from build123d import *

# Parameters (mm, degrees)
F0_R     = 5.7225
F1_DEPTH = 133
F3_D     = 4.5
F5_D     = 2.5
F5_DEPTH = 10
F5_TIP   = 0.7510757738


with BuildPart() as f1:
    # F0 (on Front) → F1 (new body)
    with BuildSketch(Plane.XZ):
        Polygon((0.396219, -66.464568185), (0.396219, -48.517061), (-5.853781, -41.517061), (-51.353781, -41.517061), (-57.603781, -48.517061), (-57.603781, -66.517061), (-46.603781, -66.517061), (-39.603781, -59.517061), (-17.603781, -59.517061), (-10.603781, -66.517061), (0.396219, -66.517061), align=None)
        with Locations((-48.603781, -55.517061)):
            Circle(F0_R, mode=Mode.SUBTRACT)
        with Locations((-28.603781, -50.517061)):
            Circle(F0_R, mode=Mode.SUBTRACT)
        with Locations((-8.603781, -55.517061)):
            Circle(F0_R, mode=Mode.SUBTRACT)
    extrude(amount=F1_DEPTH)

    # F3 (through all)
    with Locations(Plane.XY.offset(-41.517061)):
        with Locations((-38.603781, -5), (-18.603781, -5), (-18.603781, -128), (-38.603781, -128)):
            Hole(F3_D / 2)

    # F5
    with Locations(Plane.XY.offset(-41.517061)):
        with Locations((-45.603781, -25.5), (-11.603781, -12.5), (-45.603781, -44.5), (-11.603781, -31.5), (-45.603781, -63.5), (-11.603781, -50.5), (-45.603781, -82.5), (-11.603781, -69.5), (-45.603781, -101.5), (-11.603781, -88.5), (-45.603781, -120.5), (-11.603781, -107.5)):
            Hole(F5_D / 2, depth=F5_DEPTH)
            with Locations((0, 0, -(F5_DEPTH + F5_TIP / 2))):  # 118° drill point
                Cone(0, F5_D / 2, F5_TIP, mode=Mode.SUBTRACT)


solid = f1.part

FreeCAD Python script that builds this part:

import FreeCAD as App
import Part
import Sketcher
from FreeCAD import Vector
Q = App.Units.Quantity

doc = App.newDocument("Part")
params = doc.addObject("Spreadsheet::Sheet", "Params")
for row, (alias, value) in enumerate([
    ("sketch1_width", "11 mm"),
    ("sketch1_width2", "22 mm"),
    ("sketch1_height", "18 mm"),
    ("sketch1_width3", "45.5 mm"),
    ("pad1_length", "133 mm"),
    ("sketch2_diameter", "4.5 mm"),
    ("hole_diameter", "4.5 mm"),
    ("sketch3_diameter", "2.5 mm"),
    ("hole2_diameter", "2.5 mm"),
    ("hole2_depth", "10 mm"),
], start=1):
    params.set(f"A{row}", alias)
    params.set(f"B{row}", "=" + value)
    params.setAlias(f"B{row}", alias)

body = doc.addObject("PartDesign::Body", "Body")

# Sketch on XZ plane
sketch1 = body.newObject("Sketcher::SketchObject", "Sketch")
sketch1.AttachmentSupport = (doc.getObject("XZ_Plane"), [""])
sketch1.MapMode = "FlatFace"
sketch1.addGeometry([
    Part.LineSegment(Vector(0.396219, -48.517061, 0), Vector(-5.853781, -41.517061, 0)),  # 0
    Part.LineSegment(Vector(-5.853781, -41.517061, 0), Vector(-51.353781, -41.517061, 0)),  # 1
    Part.LineSegment(Vector(-51.353781, -41.517061, 0), Vector(-57.603781, -48.517061, 0)),  # 2
    Part.LineSegment(Vector(-57.603781, -48.517061, 0), Vector(-57.603781, -66.517061, 0)),  # 3
    Part.LineSegment(Vector(-57.603781, -66.517061, 0), Vector(-46.603781, -66.517061, 0)),  # 4
    Part.LineSegment(Vector(-46.603781, -66.517061, 0), Vector(-39.603781, -59.517061, 0)),  # 5
    Part.LineSegment(Vector(-39.603781, -59.517061, 0), Vector(-17.603781, -59.517061, 0)),  # 6
    Part.LineSegment(Vector(-17.603781, -59.517061, 0), Vector(-10.603781, -66.517061, 0)),  # 7
    Part.LineSegment(Vector(-10.603781, -66.517061, 0), Vector(0.396219, -66.517061, 0)),  # 8
    Part.LineSegment(Vector(0.396219, -66.517061, 0), Vector(0.396219, -48.517061, 0)),  # 9
    Part.Circle(Vector(-48.603781, -55.517061, 0), Vector(0, 0, 1), 5.7225),  # 10
    Part.Circle(Vector(-8.603781, -55.517061, 0), Vector(0, 0, 1), 5.7225),  # 11
    Part.Circle(Vector(-28.603781, -50.517061, 0), Vector(0, 0, 1), 5.7225),  # 12
], False)
sketch1.addConstraint([
    Sketcher.Constraint("Coincident", 0, 2, 1, 1),
    Sketcher.Constraint("Coincident", 1, 2, 2, 1),
    Sketcher.Constraint("Coincident", 2, 2, 3, 1),
    Sketcher.Constraint("Coincident", 3, 2, 4, 1),
    Sketcher.Constraint("Coincident", 4, 2, 5, 1),
    Sketcher.Constraint("Coincident", 5, 2, 6, 1),
    Sketcher.Constraint("Coincident", 6, 2, 7, 1),
    Sketcher.Constraint("Coincident", 7, 2, 8, 1),
    Sketcher.Constraint("Coincident", 8, 2, 9, 1),
    Sketcher.Constraint("Coincident", 9, 2, 0, 1),
    Sketcher.Constraint("Horizontal", 1),
    Sketcher.Constraint("Vertical", 3),
    Sketcher.Constraint("Horizontal", 4),
    Sketcher.Constraint("Horizontal", 6),
    Sketcher.Constraint("Horizontal", 8),
    Sketcher.Constraint("Vertical", 9),
    Sketcher.Constraint("Equal", 10, 11),
    Sketcher.Constraint("Equal", 11, 12),
    Sketcher.Constraint("Perpendicular", 5, 7),
    Sketcher.Constraint("Horizontal", 10, 3, 11, 3),
    Sketcher.Constraint("Horizontal", 4, 2, 7, 2),
    Sketcher.Constraint("Horizontal", 2, 2, 9, 2),
    Sketcher.Constraint("Equal", 4, 8),
    Sketcher.Constraint("Equal", 0, 2),
    Sketcher.Constraint("Equal", 5, 7),
    Sketcher.Constraint("DistanceX", 4, 1, 4, 2, Q("11 mm")),
    Sketcher.Constraint("DistanceX", 6, 1, 6, 2, Q("22 mm")),
    Sketcher.Constraint("DistanceY", 3, 2, 3, 1, Q("18 mm")),
    Sketcher.Constraint("Diameter", 10, Q("11.445 mm")),
    Sketcher.Constraint("DistanceX", 1, 2, 1, 1, Q("45.5 mm")),
    Sketcher.Constraint("DistanceX", 10, 3, 11, 3, Q("40 mm")),
    Sketcher.Constraint("DistanceX", 10, 3, 12, 3, Q("20 mm")),
    Sketcher.Constraint("DistanceY", 10, 3, 12, 3, Q("5 mm")),
    Sketcher.Constraint("DistanceY", 11, 3, 0, 2, Q("14 mm")),
    Sketcher.Constraint("DistanceY", 2, 2, 1, 2, Q("7 mm")),
    Sketcher.Constraint("DistanceX", 2, 2, 10, 3, Q("9 mm")),
    Sketcher.Constraint("DistanceX", 10, 3, 5, 2, Q("9 mm")),
    Sketcher.Constraint("DistanceX", 10, 3, -1, 1, Q("48.603781 mm")),
    Sketcher.Constraint("DistanceY", 10, 3, -1, 1, Q("55.517061 mm")),
])
sketch1.setExpression("Constraints[25]", "Params.sketch1_width")
sketch1.setExpression("Constraints[26]", "Params.sketch1_width2")
sketch1.setExpression("Constraints[27]", "Params.sketch1_height")
sketch1.setExpression("Constraints[29]", "Params.sketch1_width3")
pad1 = body.newObject("PartDesign::Pad", "Pad")
pad1.Profile = sketch1
pad1.setExpression("Length", "Params.pad1_length")

# Sketch on XY plane
sketch2 = body.newObject("Sketcher::SketchObject", "Sketch001")
sketch2.AttachmentSupport = (doc.getObject("XY_Plane"), [""])
sketch2.MapMode = "FlatFace"
sketch2.AttachmentOffset = App.Placement(Vector(0, 0, -41.517061), App.Rotation())
sketch2.addGeometry([
    Part.Circle(Vector(-38.603781, -5, 0), Vector(0, 0, 1), 2.25),
    Part.Circle(Vector(-18.603781, -5, 0), Vector(0, 0, 1), 2.25),
    Part.Circle(Vector(-18.603781, -128, 0), Vector(0, 0, 1), 2.25),
    Part.Circle(Vector(-38.603781, -128, 0), Vector(0, 0, 1), 2.25),
], False)
sketch2.addConstraint([
    Sketcher.Constraint("Equal", 0, 1),
    Sketcher.Constraint("Equal", 1, 2),
    Sketcher.Constraint("Equal", 2, 3),
    Sketcher.Constraint("Horizontal", 0, 3, 1, 3),
    Sketcher.Constraint("Horizontal", 2, 3, 3, 3),
    Sketcher.Constraint("Vertical", 1, 3, 2, 3),
    Sketcher.Constraint("Vertical", 0, 3, 3, 3),
    Sketcher.Constraint("Diameter", 0, Q("4.5 mm")),
    Sketcher.Constraint("DistanceY", 0, 3, -1, 1, Q("5 mm")),
    Sketcher.Constraint("DistanceY", 2, 3, -1, 1, Q("128 mm")),
    Sketcher.Constraint("DistanceX", 0, 3, 1, 3, Q("20 mm")),
    Sketcher.Constraint("DistanceX", 0, 3, -1, 1, Q("38.603781 mm")),
])
sketch2.setExpression("Constraints[7]", "Params.sketch2_diameter")
doc.recompute()
hole = body.newObject("PartDesign::Hole", "Hole")
hole.Profile = sketch2
hole.ThreadType = "None"
hole.setExpression("Diameter", "Params.hole_diameter")
hole.DepthType = "ThroughAll"

# Sketch on XY plane
sketch3 = body.newObject("Sketcher::SketchObject", "Sketch002")
sketch3.AttachmentSupport = (doc.getObject("XY_Plane"), [""])
sketch3.MapMode = "FlatFace"
sketch3.AttachmentOffset = App.Placement(Vector(0, 0, -41.517061), App.Rotation())
sketch3.addGeometry([
    Part.Circle(Vector(-45.603781, -25.5, 0), Vector(0, 0, 1), 1.25),  # 0
    Part.Circle(Vector(-11.603781, -12.5, 0), Vector(0, 0, 1), 1.25),  # 1
    Part.Circle(Vector(-45.603781, -44.5, 0), Vector(0, 0, 1), 1.25),  # 2
    Part.Circle(Vector(-11.603781, -31.5, 0), Vector(0, 0, 1), 1.25),  # 3
    Part.Circle(Vector(-45.603781, -63.5, 0), Vector(0, 0, 1), 1.25),  # 4
    Part.Circle(Vector(-11.603781, -50.5, 0), Vector(0, 0, 1), 1.25),  # 5
    Part.Circle(Vector(-45.603781, -82.5, 0), Vector(0, 0, 1), 1.25),  # 6
    Part.Circle(Vector(-11.603781, -69.5, 0), Vector(0, 0, 1), 1.25),  # 7
    Part.Circle(Vector(-45.603781, -101.5, 0), Vector(0, 0, 1), 1.25),  # 8
    Part.Circle(Vector(-11.603781, -88.5, 0), Vector(0, 0, 1), 1.25),  # 9
    Part.Circle(Vector(-45.603781, -120.5, 0), Vector(0, 0, 1), 1.25),  # 10
    Part.Circle(Vector(-11.603781, -107.5, 0), Vector(0, 0, 1), 1.25),  # 11
], False)
sketch3.addConstraint([
    Sketcher.Constraint("Equal", 0, 1),
    Sketcher.Constraint("Equal", 1, 2),
    Sketcher.Constraint("Equal", 2, 3),
    Sketcher.Constraint("Equal", 3, 4),
    Sketcher.Constraint("Equal", 4, 5),
    Sketcher.Constraint("Equal", 5, 6),
    Sketcher.Constraint("Equal", 6, 7),
    Sketcher.Constraint("Equal", 7, 8),
    Sketcher.Constraint("Equal", 8, 9),
    Sketcher.Constraint("Equal", 9, 10),
    Sketcher.Constraint("Equal", 10, 11),
    Sketcher.Constraint("Vertical", 0, 3, 2, 3),
    Sketcher.Constraint("Vertical", 1, 3, 3, 3),
    Sketcher.Constraint("Vertical", 2, 3, 4, 3),
    Sketcher.Constraint("Vertical", 3, 3, 5, 3),
    Sketcher.Constraint("Vertical", 4, 3, 6, 3),
    Sketcher.Constraint("Vertical", 5, 3, 7, 3),
    Sketcher.Constraint("Vertical", 6, 3, 8, 3),
    Sketcher.Constraint("Vertical", 7, 3, 9, 3),
    Sketcher.Constraint("Vertical", 8, 3, 10, 3),
    Sketcher.Constraint("Vertical", 9, 3, 11, 3),
    Sketcher.Constraint("Diameter", 0, Q("2.5 mm")),
    Sketcher.Constraint("DistanceX", 0, 3, 1, 3, Q("34 mm")),
    Sketcher.Constraint("DistanceY", 0, 3, 1, 3, Q("13 mm")),
    Sketcher.Constraint("DistanceY", 2, 3, 0, 3, Q("19 mm")),
    Sketcher.Constraint("DistanceY", 3, 3, 1, 3, Q("19 mm")),
    Sketcher.Constraint("DistanceY", 4, 3, 2, 3, Q("19 mm")),
    Sketcher.Constraint("DistanceY", 5, 3, 3, 3, Q("19 mm")),
    Sketcher.Constraint("DistanceY", 6, 3, 4, 3, Q("19 mm")),
    Sketcher.Constraint("DistanceY", 7, 3, 5, 3, Q("19 mm")),
    Sketcher.Constraint("DistanceY", 8, 3, 6, 3, Q("19 mm")),
    Sketcher.Constraint("DistanceY", 9, 3, 7, 3, Q("19 mm")),
    Sketcher.Constraint("DistanceY", 10, 3, 8, 3, Q("19 mm")),
    Sketcher.Constraint("DistanceY", 11, 3, 9, 3, Q("19 mm")),
    Sketcher.Constraint("DistanceY", 0, 3, -1, 1, Q("25.5 mm")),
    Sketcher.Constraint("DistanceX", 0, 3, -1, 1, Q("45.603781 mm")),
])
sketch3.setExpression("Constraints[21]", "Params.sketch3_diameter")
doc.recompute()
hole2 = body.newObject("PartDesign::Hole", "Hole001")
hole2.Profile = sketch3
hole2.ThreadType = "None"
hole2.setExpression("Diameter", "Params.hole2_diameter")
hole2.DepthType = "Dimension"
hole2.setExpression("Depth", "Params.hole2_depth")
hole2.DrillPoint = "Angled"
hole2.DrillPointAngle = 118

doc.recompute()
